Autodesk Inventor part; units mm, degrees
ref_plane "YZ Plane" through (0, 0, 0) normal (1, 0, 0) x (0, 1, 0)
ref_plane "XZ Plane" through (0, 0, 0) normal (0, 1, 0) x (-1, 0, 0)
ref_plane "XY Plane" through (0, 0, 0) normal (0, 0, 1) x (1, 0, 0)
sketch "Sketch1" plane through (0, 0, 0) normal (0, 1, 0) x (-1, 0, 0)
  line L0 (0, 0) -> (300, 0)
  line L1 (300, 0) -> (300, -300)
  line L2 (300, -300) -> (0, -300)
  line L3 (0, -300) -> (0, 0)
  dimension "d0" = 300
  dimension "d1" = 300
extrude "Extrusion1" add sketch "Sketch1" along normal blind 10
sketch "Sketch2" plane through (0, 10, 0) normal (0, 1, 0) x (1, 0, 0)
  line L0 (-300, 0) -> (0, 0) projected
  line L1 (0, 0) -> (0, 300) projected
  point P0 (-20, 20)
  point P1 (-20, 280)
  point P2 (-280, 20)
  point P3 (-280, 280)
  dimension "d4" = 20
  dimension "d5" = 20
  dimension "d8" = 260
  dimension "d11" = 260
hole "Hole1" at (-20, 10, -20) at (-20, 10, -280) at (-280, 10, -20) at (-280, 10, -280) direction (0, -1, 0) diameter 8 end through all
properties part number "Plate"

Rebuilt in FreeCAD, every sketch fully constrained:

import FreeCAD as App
import Part
import Sketcher

V = App.Vector
Q = App.Units.Quantity


def add_polygon(sketch, points):
    """Adds a closed chain of lines whose ends are joined by coincident constraints."""
    first, n = sketch.GeometryCount, len(points)
    for a, b in zip(points, points[1:] + points[:1]):
        sketch.addGeometry(Part.LineSegment(App.Vector(*a, 0), App.Vector(*b, 0)), False)
    for i in range(n):
        sketch.addConstraint(Sketcher.Constraint("Coincident", first + i, 2, first + (i + 1) % n, 1))

doc = App.newDocument("Part")
params = doc.addObject("Spreadsheet::Sheet", "Params")
for row, (alias, value) in enumerate([
    ("sketch1_width", "300 mm"),
    ("pad1_length", "10 mm"),
    ("sketch2_diameter", "8 mm"),
    ("hole_diameter", "8 mm"),
], start=1):
    params.set(f"A{row}", alias)
    params.set(f"B{row}", "=" + value)
    params.setAlias(f"B{row}", alias)

body = doc.addObject("PartDesign::Body", "Body")

sketch1 = body.newObject("Sketcher::SketchObject", "Sketch")
sketch1.AttachmentSupport = (doc.getObject("XZ_Plane"), [""])
sketch1.MapMode = "FlatFace"
add_polygon(sketch1, [(-300, 0), (0, 0), (0, -300), (-300, -300)])
sketch1.addConstraint(Sketcher.Constraint("Horizontal", 0))
sketch1.addConstraint(Sketcher.Constraint("Vertical", 1))
sketch1.addConstraint(Sketcher.Constraint("Horizontal", 2))
sketch1.addConstraint(Sketcher.Constraint("Vertical", 3))
sketch1.addConstraint(Sketcher.Constraint("Coincident", 0, 2, -1, 1))
sketch1.addConstraint(Sketcher.Constraint("Equal", 2, 1))
sketch1.addConstraint(Sketcher.Constraint("DistanceX", 0, 1, 0, 2, Q("300 mm")))
sketch1.setExpression("Constraints[10]", "Params.sketch1_width")
pad1 = body.newObject("PartDesign::Pad", "Pad")
pad1.Profile = sketch1
pad1.setExpression("Length", "Params.pad1_length")
pad1.Reversed = True

sketch2 = body.newObject("Sketcher::SketchObject", "Sketch001")
sketch2.AttachmentSupport = (doc.getObject("XZ_Plane"), [""])
sketch2.MapMode = "FlatFace"
sketch2.AttachmentOffset = App.Placement(V(0, 0, -10), App.Rotation())
sketch2.addGeometry(Part.Circle(V(-20, -20, 0), V(0, 0, 1), 4), False)
sketch2.addGeometry(Part.Circle(V(-20, -280, 0), V(0, 0, 1), 4), False)
sketch2.addGeometry(Part.Circle(V(-280, -20, 0), V(0, 0, 1), 4), False)
sketch2.addGeometry(Part.Circle(V(-280, -280, 0), V(0, 0, 1), 4), False)
sketch2.addConstraint(Sketcher.Constraint("Equal", 0, 1))
sketch2.addConstraint(Sketcher.Constraint("Equal", 1, 2))
sketch2.addConstraint(Sketcher.Constraint("Equal", 2, 3))
sketch2.addConstraint(Sketcher.Constraint("Horizontal", 0, 3, 2, 3))
sketch2.addConstraint(Sketcher.Constraint("Horizontal", 1, 3, 3, 3))
sketch2.addConstraint(Sketcher.Constraint("Vertical", 0, 3, 1, 3))
sketch2.addConstraint(Sketcher.Constraint("Vertical", 2, 3, 3, 3))
sketch2.addConstraint(Sketcher.Constraint("Diameter", 0, Q("8 mm")))
sketch2.addConstraint(Sketcher.Constraint("DistanceX", 0, 3, -1, 1, Q("20 mm")))
sketch2.addConstraint(Sketcher.Constraint("DistanceY", 0, 3, -1, 1, Q("20 mm")))
sketch2.addConstraint(Sketcher.Constraint("DistanceY", 1, 3, -1, 1, Q("280 mm")))
sketch2.addConstraint(Sketcher.Constraint("DistanceX", 2, 3, -1, 1, Q("280 mm")))
sketch2.setExpression("Constraints[7]", "Params.sketch2_diameter")
doc.recompute()
hole = body.newObject("PartDesign::Hole", "Hole")
hole.Profile = sketch2
hole.ThreadType = "None"
hole.setExpression("Diameter", "Params.hole_diameter")
hole.DepthType = "ThroughAll"
hole.Reversed = True

doc.recompute()
